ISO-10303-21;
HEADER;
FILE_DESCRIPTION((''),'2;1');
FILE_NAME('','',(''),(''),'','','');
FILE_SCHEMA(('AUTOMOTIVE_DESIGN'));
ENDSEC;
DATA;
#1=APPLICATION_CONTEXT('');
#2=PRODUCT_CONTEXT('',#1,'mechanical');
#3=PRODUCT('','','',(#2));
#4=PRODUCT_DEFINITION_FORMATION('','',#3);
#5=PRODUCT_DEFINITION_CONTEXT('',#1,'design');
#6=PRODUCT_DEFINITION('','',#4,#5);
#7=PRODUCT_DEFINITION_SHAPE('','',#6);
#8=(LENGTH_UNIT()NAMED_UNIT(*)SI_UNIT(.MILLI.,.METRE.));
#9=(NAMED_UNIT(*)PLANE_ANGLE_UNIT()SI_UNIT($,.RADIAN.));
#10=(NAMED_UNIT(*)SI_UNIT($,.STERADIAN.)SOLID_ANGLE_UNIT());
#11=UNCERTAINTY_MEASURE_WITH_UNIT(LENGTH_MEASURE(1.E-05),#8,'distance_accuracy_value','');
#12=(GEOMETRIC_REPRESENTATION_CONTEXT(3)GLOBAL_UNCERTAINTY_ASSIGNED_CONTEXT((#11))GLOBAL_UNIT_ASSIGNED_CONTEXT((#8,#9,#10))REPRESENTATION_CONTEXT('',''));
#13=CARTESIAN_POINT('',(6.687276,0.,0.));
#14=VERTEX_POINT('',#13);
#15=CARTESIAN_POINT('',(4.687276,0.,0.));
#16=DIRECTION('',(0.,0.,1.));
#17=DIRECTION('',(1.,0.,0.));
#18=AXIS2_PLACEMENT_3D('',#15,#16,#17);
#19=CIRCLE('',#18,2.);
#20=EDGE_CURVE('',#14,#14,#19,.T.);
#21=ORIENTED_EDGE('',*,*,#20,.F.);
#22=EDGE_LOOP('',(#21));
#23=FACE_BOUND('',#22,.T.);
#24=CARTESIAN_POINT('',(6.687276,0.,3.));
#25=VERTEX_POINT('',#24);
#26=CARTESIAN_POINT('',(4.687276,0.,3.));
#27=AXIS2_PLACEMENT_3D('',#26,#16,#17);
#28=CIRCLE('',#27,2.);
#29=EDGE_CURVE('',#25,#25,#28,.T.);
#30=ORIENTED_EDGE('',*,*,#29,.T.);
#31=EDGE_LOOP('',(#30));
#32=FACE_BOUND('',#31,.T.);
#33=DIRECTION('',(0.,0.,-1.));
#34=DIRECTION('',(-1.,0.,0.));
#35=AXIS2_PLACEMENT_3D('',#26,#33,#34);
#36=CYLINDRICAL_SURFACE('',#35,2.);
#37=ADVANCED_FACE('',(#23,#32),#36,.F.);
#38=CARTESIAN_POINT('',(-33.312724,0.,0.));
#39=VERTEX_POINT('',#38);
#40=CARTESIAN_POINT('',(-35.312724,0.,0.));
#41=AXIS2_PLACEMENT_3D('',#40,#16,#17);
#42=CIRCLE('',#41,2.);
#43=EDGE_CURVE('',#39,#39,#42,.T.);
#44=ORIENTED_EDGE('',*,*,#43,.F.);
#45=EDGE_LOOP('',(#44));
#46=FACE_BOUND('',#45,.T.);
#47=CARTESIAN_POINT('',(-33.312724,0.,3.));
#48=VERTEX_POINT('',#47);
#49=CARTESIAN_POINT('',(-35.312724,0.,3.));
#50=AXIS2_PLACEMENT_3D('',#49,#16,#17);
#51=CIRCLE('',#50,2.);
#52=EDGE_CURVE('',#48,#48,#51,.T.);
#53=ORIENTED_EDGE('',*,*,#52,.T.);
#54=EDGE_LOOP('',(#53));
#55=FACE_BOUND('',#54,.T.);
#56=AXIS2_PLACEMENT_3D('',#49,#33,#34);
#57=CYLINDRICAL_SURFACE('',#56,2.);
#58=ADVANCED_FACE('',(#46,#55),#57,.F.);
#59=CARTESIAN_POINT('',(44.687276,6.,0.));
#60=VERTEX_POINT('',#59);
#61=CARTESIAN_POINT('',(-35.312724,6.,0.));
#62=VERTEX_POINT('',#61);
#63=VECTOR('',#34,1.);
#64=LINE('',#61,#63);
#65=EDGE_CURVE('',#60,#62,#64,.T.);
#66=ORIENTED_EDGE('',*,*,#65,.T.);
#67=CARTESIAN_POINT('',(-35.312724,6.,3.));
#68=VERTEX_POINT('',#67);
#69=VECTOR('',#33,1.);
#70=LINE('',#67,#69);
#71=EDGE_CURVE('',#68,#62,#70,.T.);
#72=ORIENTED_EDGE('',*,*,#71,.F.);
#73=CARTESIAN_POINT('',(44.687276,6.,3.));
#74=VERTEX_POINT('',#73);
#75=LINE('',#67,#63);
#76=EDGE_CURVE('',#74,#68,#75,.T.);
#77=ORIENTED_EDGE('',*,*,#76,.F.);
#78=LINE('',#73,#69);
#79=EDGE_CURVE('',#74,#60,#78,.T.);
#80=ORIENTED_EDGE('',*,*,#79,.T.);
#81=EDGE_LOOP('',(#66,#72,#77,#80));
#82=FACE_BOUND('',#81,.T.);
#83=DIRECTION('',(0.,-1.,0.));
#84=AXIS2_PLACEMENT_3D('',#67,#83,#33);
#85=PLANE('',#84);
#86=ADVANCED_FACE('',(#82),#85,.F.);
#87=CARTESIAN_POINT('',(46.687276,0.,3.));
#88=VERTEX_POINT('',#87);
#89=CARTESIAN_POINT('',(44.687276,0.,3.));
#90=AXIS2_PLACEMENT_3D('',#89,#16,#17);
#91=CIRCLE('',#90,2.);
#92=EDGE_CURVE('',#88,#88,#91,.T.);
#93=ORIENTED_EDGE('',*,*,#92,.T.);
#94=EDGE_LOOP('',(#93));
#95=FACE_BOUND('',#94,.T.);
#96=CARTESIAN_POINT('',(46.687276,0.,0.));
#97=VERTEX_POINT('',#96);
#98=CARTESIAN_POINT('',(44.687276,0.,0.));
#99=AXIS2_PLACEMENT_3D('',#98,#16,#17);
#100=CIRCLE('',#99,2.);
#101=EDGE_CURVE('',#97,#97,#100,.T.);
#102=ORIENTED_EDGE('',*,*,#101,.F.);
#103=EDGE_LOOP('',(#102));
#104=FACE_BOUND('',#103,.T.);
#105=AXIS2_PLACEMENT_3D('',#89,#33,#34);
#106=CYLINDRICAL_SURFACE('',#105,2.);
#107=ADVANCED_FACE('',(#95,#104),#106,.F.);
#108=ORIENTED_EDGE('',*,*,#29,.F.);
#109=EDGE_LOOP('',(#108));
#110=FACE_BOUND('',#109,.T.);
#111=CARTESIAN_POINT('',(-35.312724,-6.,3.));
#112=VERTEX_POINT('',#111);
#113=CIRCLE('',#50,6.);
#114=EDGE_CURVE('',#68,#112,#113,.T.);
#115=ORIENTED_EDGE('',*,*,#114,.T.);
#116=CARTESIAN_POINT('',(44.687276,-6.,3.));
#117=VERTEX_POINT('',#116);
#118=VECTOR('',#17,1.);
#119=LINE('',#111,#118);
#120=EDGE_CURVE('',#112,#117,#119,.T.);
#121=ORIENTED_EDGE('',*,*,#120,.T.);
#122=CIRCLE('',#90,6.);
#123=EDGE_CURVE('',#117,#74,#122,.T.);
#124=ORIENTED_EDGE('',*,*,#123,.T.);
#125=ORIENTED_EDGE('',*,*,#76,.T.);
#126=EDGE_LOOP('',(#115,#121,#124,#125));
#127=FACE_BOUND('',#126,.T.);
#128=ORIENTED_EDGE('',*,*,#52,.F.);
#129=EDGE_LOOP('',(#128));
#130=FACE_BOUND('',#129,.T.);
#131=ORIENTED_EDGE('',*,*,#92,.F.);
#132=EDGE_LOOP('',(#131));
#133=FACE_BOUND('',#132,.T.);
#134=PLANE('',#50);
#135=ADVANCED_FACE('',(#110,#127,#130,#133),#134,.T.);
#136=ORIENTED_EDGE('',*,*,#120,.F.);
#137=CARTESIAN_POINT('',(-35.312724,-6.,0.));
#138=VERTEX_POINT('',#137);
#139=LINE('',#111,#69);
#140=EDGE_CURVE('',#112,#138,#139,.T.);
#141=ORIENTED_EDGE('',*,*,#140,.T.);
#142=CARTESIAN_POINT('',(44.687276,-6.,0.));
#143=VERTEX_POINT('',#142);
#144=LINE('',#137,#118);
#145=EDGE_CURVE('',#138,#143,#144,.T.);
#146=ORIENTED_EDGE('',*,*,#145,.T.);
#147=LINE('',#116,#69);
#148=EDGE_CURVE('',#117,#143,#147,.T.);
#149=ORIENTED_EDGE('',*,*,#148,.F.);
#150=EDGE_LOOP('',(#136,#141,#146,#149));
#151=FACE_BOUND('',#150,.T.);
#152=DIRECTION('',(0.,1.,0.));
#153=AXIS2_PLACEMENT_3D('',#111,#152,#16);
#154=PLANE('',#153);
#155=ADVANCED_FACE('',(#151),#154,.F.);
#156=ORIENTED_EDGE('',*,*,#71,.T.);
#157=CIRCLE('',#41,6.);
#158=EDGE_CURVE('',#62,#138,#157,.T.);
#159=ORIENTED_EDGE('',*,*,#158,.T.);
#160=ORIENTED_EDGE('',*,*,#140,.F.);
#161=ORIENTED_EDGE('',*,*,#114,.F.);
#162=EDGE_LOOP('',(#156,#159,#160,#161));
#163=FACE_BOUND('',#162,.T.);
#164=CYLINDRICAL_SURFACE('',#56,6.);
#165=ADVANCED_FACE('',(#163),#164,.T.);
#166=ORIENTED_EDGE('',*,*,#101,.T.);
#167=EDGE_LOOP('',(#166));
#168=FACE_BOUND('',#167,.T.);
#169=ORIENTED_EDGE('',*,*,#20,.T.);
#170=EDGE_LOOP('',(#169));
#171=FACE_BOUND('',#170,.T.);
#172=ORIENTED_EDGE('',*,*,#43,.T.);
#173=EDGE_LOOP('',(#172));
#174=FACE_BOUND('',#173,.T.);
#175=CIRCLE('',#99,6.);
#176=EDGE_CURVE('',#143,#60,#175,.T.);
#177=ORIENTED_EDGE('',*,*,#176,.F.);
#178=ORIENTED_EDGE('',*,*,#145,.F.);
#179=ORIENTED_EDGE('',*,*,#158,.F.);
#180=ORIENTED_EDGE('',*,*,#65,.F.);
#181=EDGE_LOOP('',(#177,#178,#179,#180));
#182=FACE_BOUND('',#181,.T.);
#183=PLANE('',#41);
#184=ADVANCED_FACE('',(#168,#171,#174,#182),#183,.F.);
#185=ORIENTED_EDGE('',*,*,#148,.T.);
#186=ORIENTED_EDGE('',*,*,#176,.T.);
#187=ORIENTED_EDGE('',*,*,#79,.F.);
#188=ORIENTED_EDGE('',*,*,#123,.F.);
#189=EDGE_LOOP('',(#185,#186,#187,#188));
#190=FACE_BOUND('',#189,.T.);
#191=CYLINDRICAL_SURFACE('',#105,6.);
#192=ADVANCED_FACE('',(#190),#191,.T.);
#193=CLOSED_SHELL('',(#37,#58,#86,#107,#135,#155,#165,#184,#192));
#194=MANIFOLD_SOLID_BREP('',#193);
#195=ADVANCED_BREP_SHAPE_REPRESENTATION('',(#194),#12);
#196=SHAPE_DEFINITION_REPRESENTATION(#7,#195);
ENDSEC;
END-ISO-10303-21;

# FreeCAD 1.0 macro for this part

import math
import FreeCAD as App
import Part
import Sketcher

V = App.Vector

doc = App.newDocument("Part")
body = doc.addObject("PartDesign::Body", "Body")

# Sketch on XY plane
sketch1 = doc.addObject("Sketcher::SketchObject", "Sketch")
body.addObject(sketch1)
sketch1.AttachmentSupport = (doc.XY_Plane, [""])
sketch1.MapMode = "FlatFace"
sketch1.addGeometry([
    Part.LineSegment(V(44.7, 6, 0), V(-35.3, 6, 0)),  # 0
    Part.ArcOfCircle(Part.Circle(V(-35.3, 0, 0), V(0, 0, 1), 6), math.radians(90), math.radians(270)),  # 1
    Part.LineSegment(V(-35.3, -6, 0), V(44.7, -6, 0)),  # 2
    Part.ArcOfCircle(Part.Circle(V(44.7, 0, 0), V(0, 0, 1), 6), math.radians(-90), math.radians(90)),  # 3
    Part.Circle(V(44.7, 0, 0), V(0, 0, 1), 2),  # 4
    Part.Circle(V(4.7, 0, 0), V(0, 0, 1), 2),  # 5
    Part.Circle(V(-35.3, 0, 0), V(0, 0, 1), 2),  # 6
], False)
sketch1.addConstraint([
    Sketcher.Constraint("Tangent", 0, 2, 1, 1),
    Sketcher.Constraint("Tangent", 1, 2, 2, 1),
    Sketcher.Constraint("Tangent", 2, 2, 3, 1),
    Sketcher.Constraint("Tangent", 3, 2, 0, 1),
    Sketcher.Constraint("Horizontal", 0),
    Sketcher.Constraint("Horizontal", 2),
    Sketcher.Constraint("Coincident", 4, 3, 3, 3),
    Sketcher.Constraint("Coincident", 6, 3, 1, 3),
    Sketcher.Constraint("Equal", 4, 5),
    Sketcher.Constraint("Equal", 5, 6),
    Sketcher.Constraint("PointOnObject", 1, 3, -1),
    Sketcher.Constraint("PointOnObject", 5, 3, -1),
    Sketcher.Constraint("Diameter", 4, 4.0),
    Sketcher.Constraint("Radius", 1, 6.0),
    Sketcher.Constraint("DistanceX", 0, 2, 0, 1, 80.0),
    Sketcher.Constraint("DistanceX", 1, 3, 5, 3, 40.0),
    Sketcher.Constraint("DistanceX", 1, 3, -1, 1, 35.312724),
])
pad1 = doc.addObject("PartDesign::Pad", "Pad")
body.addObject(pad1)
pad1.Profile = sketch1
pad1.Length = 3

doc.recompute()
